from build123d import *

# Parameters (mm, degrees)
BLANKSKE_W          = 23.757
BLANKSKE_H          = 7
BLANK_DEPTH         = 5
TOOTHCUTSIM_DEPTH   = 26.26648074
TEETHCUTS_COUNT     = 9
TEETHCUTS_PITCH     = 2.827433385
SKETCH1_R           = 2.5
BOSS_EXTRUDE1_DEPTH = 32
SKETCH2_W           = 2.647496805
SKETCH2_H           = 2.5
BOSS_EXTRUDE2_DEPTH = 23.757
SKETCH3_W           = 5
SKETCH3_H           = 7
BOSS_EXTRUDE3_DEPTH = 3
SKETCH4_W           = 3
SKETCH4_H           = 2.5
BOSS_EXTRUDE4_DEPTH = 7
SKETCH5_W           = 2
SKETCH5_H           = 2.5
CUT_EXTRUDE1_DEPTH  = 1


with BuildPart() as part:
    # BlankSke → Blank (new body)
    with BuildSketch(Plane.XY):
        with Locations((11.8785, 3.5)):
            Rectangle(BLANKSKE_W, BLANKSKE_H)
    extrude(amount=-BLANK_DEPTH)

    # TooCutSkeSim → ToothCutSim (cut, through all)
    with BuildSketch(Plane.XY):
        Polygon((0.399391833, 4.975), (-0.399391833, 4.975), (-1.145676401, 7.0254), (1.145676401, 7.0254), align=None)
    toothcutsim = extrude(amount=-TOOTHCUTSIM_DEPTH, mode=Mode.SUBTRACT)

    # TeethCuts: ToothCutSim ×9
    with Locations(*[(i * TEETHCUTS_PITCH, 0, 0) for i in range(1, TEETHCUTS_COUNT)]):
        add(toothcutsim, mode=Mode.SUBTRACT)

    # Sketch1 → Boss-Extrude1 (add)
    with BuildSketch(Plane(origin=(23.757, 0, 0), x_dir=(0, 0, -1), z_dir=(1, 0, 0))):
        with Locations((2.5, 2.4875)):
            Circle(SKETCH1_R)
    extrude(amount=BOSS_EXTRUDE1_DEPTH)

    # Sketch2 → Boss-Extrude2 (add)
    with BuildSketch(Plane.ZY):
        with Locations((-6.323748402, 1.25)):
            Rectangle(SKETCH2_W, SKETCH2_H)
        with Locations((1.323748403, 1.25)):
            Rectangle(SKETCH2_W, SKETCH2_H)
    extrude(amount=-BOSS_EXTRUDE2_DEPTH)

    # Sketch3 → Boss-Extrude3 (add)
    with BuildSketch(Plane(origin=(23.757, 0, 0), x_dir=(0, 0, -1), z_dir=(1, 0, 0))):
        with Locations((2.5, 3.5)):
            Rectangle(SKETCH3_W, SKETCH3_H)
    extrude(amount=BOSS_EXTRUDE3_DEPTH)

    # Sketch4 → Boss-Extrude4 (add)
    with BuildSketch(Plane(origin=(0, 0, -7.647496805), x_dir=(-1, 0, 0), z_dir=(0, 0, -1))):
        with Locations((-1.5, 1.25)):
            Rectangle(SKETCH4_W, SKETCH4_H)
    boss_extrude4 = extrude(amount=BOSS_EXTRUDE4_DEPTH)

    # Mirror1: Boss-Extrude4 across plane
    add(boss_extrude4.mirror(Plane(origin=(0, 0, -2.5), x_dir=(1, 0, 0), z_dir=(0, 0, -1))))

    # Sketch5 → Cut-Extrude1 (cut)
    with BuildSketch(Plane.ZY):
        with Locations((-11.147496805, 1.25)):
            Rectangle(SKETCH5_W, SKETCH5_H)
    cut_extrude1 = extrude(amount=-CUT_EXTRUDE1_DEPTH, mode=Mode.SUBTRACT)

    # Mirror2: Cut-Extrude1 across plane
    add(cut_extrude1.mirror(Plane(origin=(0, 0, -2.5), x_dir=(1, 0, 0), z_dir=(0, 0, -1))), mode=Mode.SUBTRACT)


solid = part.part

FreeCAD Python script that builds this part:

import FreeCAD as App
import Part
import Sketcher

V = App.Vector
Q = App.Units.Quantity


def add_polygon(sketch, points):
    """Adds a closed chain of lines whose ends are joined by coincident constraints."""
    first, n = sketch.GeometryCount, len(points)
    for a, b in zip(points, points[1:] + points[:1]):
        sketch.addGeometry(Part.LineSegment(App.Vector(*a, 0), App.Vector(*b, 0)), False)
    for i in range(n):
        sketch.addConstraint(Sketcher.Constraint("Coincident", first + i, 2, first + (i + 1) % n, 1))

doc = App.newDocument("Part")
params = doc.addObject("Spreadsheet::Sheet", "Params")
for row, (alias, value) in enumerate([
    ("sketch1_height", "7 mm"),
    ("pad1_length", "5 mm"),
    ("linearpattern_pitch", "2.827433 mm"),
    ("sketch3_diameter", "5 mm"),
    ("pad2_length", "32 mm"),
    ("sketch4_width", "2.5 mm"),
    ("pad3_length", "23.757 mm"),
    ("sketch5_width", "7 mm"),
    ("sketch5_height", "5 mm"),
    ("pad4_length", "3 mm"),
    ("sketch6_width", "3 mm"),
    ("sketch6_height", "2.5 mm"),
    ("pad5_length", "7 mm"),
    ("sketch7_height", "2 mm"),
    ("sketch7_width", "2.5 mm"),
    ("pocket2_length", "1 mm"),
], start=1):
    params.set(f"A{row}", alias)
    params.set(f"B{row}", "=" + value)
    params.setAlias(f"B{row}", alias)

body = doc.addObject("PartDesign::Body", "Body")

sketch1 = doc.addObject("Sketcher::SketchObject", "Sketch")
body.addObject(sketch1)
sketch1.AttachmentSupport = (doc.XY_Plane, [""])
sketch1.MapMode = "FlatFace"
add_polygon(sketch1, [(0, 7), (0, 0), (24, 0), (24, 7)])
sketch1.addConstraint([
    Sketcher.Constraint("Vertical", 0),
    Sketcher.Constraint("Horizontal", 1),
    Sketcher.Constraint("Vertical", 2),
    Sketcher.Constraint("Horizontal", 3),
    Sketcher.Constraint("Coincident", 0, 2, -1, 1),
    Sketcher.Constraint("DistanceY", 0, 2, 0, 1, Q("7 mm")),
    Sketcher.Constraint("DistanceX", 1, 1, 1, 2, Q("23.757 mm")),
])
sketch1.setExpression("Constraints[9]", "Params.sketch1_height")
pad1 = doc.addObject("PartDesign::Pad", "Pad")
body.addObject(pad1)
pad1.Profile = sketch1
pad1.setExpression("Length", "Params.pad1_length")
pad1.Reversed = True

sketch2 = doc.addObject("Sketcher::SketchObject", "Sketch001")
body.addObject(sketch2)
sketch2.AttachmentSupport = (doc.XY_Plane, [""])
sketch2.MapMode = "FlatFace"
add_polygon(sketch2, [(-0.4, 5), (0.4, 5), (1.1, 7), (-1.1, 7)])
sketch2.addConstraint([
    Sketcher.Constraint("Horizontal", 0),
    Sketcher.Constraint("Horizontal", 2),
    Sketcher.Constraint("Equal", 1, 3),
    Sketcher.Constraint("Angle", 1, Q("70 deg")),
    Sketcher.Constraint("DistanceY", -1, 1, 0, 2, Q("4.975 mm")),
    Sketcher.Constraint("DistanceY", -1, 1, 1, 2, Q("7.0254 mm")),
    Sketcher.Constraint("DistanceX", 0, 1, 0, 2, Q("0.798784 mm")),
    Sketcher.Constraint("DistanceX", -1, 1, 0, 2, Q("0.399392 mm")),
])
pocket1 = doc.addObject("PartDesign::Pocket", "Pocket")
body.addObject(pocket1)
pocket1.Profile = sketch2
pocket1.Type = "ThroughAll"
doc.recompute()

linearpattern = doc.addObject("PartDesign::LinearPattern", "LinearPattern")
body.addObject(linearpattern)
linearpattern.Originals = [pocket1]
linearpattern.Direction = (doc.X_Axis, [""])
linearpattern.Mode = "offset"
linearpattern.setExpression("Offset", "Params.linearpattern_pitch")
linearpattern.Occurrences = 9
body.Tip = linearpattern

sketch3 = doc.addObject("Sketcher::SketchObject", "Sketch002")
body.addObject(sketch3)
sketch3.AttachmentSupport = (doc.YZ_Plane, [""])
sketch3.MapMode = "FlatFace"
sketch3.AttachmentOffset = App.Placement(V(0, 0, 23.757), App.Rotation())
sketch3.addGeometry(Part.Circle(V(2.5, -2.5, 0), V(0, 0, 1), 2.5), False)
sketch3.addConstraint([
    Sketcher.Constraint("Diameter", 0, Q("5 mm")),
    Sketcher.Constraint("DistanceY", 0, 3, -1, 1, Q("2.5 mm")),
    Sketcher.Constraint("DistanceX", -1, 1, 0, 3, Q("2.4875 mm")),
])
sketch3.setExpression("Constraints[0]", "Params.sketch3_diameter")
pad2 = doc.addObject("PartDesign::Pad", "Pad001")
body.addObject(pad2)
pad2.Profile = sketch3
pad2.setExpression("Length", "Params.pad2_length")

sketch4 = doc.addObject("Sketcher::SketchObject", "Sketch003")
body.addObject(sketch4)
sketch4.AttachmentSupport = (doc.YZ_Plane, [""])
sketch4.MapMode = "FlatFace"
add_polygon(sketch4, [(2.5, -7.6), (0, -7.6), (0, -5), (2.5, -5)])
add_polygon(sketch4, [(2.5, 0), (0, 0), (0, 2.6), (2.5, 2.6)])
sketch4.addConstraint([
    Sketcher.Constraint("Horizontal", 0),
    Sketcher.Constraint("Vertical", 1),
    Sketcher.Constraint("Horizontal", 2),
    Sketcher.Constraint("Vertical", 3),
    Sketcher.Constraint("Horizontal", 4),
    Sketcher.Constraint("Vertical", 5),
    Sketcher.Constraint("Horizontal", 6),
    Sketcher.Constraint("Vertical", 7),
    Sketcher.Constraint("Coincident", 4, 2, -1, 1),
    Sketcher.Constraint("PointOnObject", 0, 2, -2),
    Sketcher.Constraint("Vertical", 3, 2, 6, 2),
    Sketcher.Constraint("Equal", 3, 5),
    Sketcher.Constraint("DistanceX", 0, 2, 0, 1, Q("2.5 mm")),
    Sketcher.Constraint("DistanceY", 1, 2, -1, 1, Q("5 mm")),
    Sketcher.Constraint("DistanceY", 1, 1, 1, 2, Q("2.647497 mm")),
])
sketch4.setExpression("Constraints[20]", "Params.sketch4_width")
pad3 = doc.addObject("PartDesign::Pad", "Pad002")
body.addObject(pad3)
pad3.Profile = sketch4
pad3.setExpression("Length", "Params.pad3_length")

sketch5 = doc.addObject("Sketcher::SketchObject", "Sketch004")
body.addObject(sketch5)
sketch5.AttachmentSupport = (doc.YZ_Plane, [""])
sketch5.MapMode = "FlatFace"
sketch5.AttachmentOffset = App.Placement(V(0, 0, 23.757), App.Rotation())
add_polygon(sketch5, [(7, 0), (0, 0), (0, -5), (7, -5)])
sketch5.addConstraint([
    Sketcher.Constraint("Horizontal", 0),
    Sketcher.Constraint("Vertical", 1),
    Sketcher.Constraint("Horizontal", 2),
    Sketcher.Constraint("Vertical", 3),
    Sketcher.Constraint("Coincident", 0, 2, -1, 1),
    Sketcher.Constraint("DistanceX", 0, 2, 0, 1, Q("7 mm")),
    Sketcher.Constraint("DistanceY", 1, 2, 1, 1, Q("5 mm")),
])
sketch5.setExpression("Constraints[9]", "Params.sketch5_width")
sketch5.setExpression("Constraints[10]", "Params.sketch5_height")
pad4 = doc.addObject("PartDesign::Pad", "Pad003")
body.addObject(pad4)
pad4.Profile = sketch5
pad4.setExpression("Length", "Params.pad4_length")

sketch6 = doc.addObject("Sketcher::SketchObject", "Sketch005")
body.addObject(sketch6)
sketch6.AttachmentSupport = (doc.XY_Plane, [""])
sketch6.MapMode = "FlatFace"
sketch6.AttachmentOffset = App.Placement(V(0, 0, -7.647497), App.Rotation())
add_polygon(sketch6, [(3, 2.5), (3, 0), (0, 0), (0, 2.5)])
sketch6.addConstraint([
    Sketcher.Constraint("Vertical", 0),
    Sketcher.Constraint("Horizontal", 1),
    Sketcher.Constraint("Vertical", 2),
    Sketcher.Constraint("Horizontal", 3),
    Sketcher.Constraint("Coincident", 1, 2, -1, 1),
    Sketcher.Constraint("DistanceX", 1, 2, 1, 1, Q("3 mm")),
    Sketcher.Constraint("DistanceY", 0, 2, 0, 1, Q("2.5 mm")),
])
sketch6.setExpression("Constraints[9]", "Params.sketch6_width")
sketch6.setExpression("Constraints[10]", "Params.sketch6_height")
pad5 = doc.addObject("PartDesign::Pad", "Pad004")
body.addObject(pad5)
pad5.Profile = sketch6
pad5.setExpression("Length", "Params.pad5_length")
pad5.Reversed = True
doc.recompute()

datumplane = doc.addObject("PartDesign::Plane", "DatumPlane")
body.addObject(datumplane)
datumplane.AttachmentSupport = (doc.XY_Plane, [""])
datumplane.MapMode = "FlatFace"
datumplane.AttachmentOffset = App.Placement(V(0, 0, -2.5), App.Rotation())
mirrored = doc.addObject("PartDesign::Mirrored", "Mirrored")
body.addObject(mirrored)
mirrored.Originals = [pad5]
mirrored.MirrorPlane = (datumplane, [""])
body.Tip = mirrored

sketch7 = doc.addObject("Sketcher::SketchObject", "Sketch006")
body.addObject(sketch7)
sketch7.AttachmentSupport = (doc.YZ_Plane, [""])
sketch7.MapMode = "FlatFace"
add_polygon(sketch7, [(2.5, -12.1), (0, -12.1), (0, -10.1), (2.5, -10.1)])
sketch7.addConstraint([
    Sketcher.Constraint("Horizontal", 0),
    Sketcher.Constraint("Vertical", 1),
    Sketcher.Constraint("Horizontal", 2),
    Sketcher.Constraint("Vertical", 3),
    Sketcher.Constraint("PointOnObject", 0, 2, -2),
    Sketcher.Constraint("DistanceY", 1, 1, 1, 2, Q("2 mm")),
    Sketcher.Constraint("DistanceX", 0, 2, 0, 1, Q("2.5 mm")),
    Sketcher.Constraint("DistanceY", 0, 2, -1, 1, Q("12.147497 mm")),
])
sketch7.setExpression("Constraints[9]", "Params.sketch7_height")
sketch7.setExpression("Constraints[10]", "Params.sketch7_width")
pocket2 = doc.addObject("PartDesign::Pocket", "Pocket001")
body.addObject(pocket2)
pocket2.Profile = sketch7
pocket2.setExpression("Length", "Params.pocket2_length")
pocket2.Reversed = True
doc.recompute()

datumplane2 = doc.addObject("PartDesign::Plane", "DatumPlane001")
body.addObject(datumplane2)
datumplane2.AttachmentSupport = (doc.XY_Plane, [""])
datumplane2.MapMode = "FlatFace"
datumplane2.AttachmentOffset = App.Placement(V(0, 0, -2.5), App.Rotation())
mirrored2 = doc.addObject("PartDesign::Mirrored", "Mirrored001")
body.addObject(mirrored2)
mirrored2.Originals = [pocket2]
mirrored2.MirrorPlane = (datumplane2, [""])
body.Tip = mirrored2

doc.recompute()
